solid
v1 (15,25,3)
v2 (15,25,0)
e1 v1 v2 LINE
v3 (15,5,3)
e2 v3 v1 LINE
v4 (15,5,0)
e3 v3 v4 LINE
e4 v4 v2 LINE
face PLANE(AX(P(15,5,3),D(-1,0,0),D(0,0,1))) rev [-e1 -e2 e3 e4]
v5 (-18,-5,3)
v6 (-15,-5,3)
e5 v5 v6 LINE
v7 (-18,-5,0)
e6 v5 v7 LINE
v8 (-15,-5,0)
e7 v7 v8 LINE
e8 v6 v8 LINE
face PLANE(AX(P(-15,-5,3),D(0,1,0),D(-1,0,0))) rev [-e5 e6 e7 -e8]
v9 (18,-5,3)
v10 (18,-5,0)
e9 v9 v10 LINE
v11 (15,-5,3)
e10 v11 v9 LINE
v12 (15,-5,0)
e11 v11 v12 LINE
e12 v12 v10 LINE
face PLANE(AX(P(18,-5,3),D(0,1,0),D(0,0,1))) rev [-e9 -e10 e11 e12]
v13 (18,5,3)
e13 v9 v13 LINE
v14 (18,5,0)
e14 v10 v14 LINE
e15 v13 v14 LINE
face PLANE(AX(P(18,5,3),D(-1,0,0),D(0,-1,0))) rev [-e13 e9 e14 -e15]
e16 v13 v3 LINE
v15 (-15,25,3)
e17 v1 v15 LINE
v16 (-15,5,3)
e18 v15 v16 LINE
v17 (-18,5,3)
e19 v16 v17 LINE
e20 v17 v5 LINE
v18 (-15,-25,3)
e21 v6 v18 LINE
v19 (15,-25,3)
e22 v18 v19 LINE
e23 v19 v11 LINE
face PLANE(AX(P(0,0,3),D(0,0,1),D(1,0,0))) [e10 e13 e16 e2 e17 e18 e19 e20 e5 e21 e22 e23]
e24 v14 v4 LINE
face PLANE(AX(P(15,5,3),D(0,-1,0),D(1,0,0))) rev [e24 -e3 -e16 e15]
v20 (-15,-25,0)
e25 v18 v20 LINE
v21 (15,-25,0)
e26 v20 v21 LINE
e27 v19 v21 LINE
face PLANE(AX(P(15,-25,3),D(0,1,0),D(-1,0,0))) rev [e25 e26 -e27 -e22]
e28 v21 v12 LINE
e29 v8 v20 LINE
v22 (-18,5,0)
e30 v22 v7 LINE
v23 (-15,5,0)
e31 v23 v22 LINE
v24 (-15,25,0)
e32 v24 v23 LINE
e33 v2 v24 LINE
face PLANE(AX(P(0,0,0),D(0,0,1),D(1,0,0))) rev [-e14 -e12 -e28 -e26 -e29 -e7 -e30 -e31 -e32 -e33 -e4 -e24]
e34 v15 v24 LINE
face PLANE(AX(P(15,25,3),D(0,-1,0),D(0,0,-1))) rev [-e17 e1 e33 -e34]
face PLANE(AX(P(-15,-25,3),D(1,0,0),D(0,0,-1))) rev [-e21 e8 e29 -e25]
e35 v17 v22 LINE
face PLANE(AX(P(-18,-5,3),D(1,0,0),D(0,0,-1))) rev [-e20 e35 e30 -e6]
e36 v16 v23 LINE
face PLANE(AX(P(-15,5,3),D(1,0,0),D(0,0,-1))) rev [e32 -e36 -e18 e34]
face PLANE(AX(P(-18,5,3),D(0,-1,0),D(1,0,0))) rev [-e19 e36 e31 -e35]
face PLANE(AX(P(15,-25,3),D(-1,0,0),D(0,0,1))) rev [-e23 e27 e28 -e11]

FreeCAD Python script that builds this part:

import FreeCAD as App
import Part
import Sketcher

V = App.Vector

doc = App.newDocument("Part")
body = doc.addObject("PartDesign::Body", "Body")

sketch1 = doc.addObject("Sketcher::SketchObject", "Sketch")
body.addObject(sketch1)
sketch1.AttachmentSupport = (doc.XY_Plane, [""])
sketch1.MapMode = "FlatFace"
sketch1.addGeometry([
    Part.LineSegment(V(-18, -5, 0), V(-15, -5, 0)),
    Part.LineSegment(V(-15, -5, 0), V(-15, -25, 0)),
    Part.LineSegment(V(-15, -25, 0), V(15, -25, 0)),
    Part.LineSegment(V(15, -25, 0), V(15, -5, 0)),
    Part.LineSegment(V(15, -5, 0), V(18, -5, 0)),
    Part.LineSegment(V(18, -5, 0), V(18, 5, 0)),
    Part.LineSegment(V(18, 5, 0), V(15, 5, 0)),
    Part.LineSegment(V(15, 5, 0), V(15, 25, 0)),
    Part.LineSegment(V(15, 25, 0), V(-15, 25, 0)),
    Part.LineSegment(V(-15, 25, 0), V(-15, 5, 0)),
    Part.LineSegment(V(-15, 5, 0), V(-18, 5, 0)),
    Part.LineSegment(V(-18, 5, 0), V(-18, -5, 0)),
], False)
sketch1.addConstraint([
    Sketcher.Constraint("Coincident", 0, 2, 1, 1),
    Sketcher.Constraint("Coincident", 1, 2, 2, 1),
    Sketcher.Constraint("Coincident", 2, 2, 3, 1),
    Sketcher.Constraint("Coincident", 3, 2, 4, 1),
    Sketcher.Constraint("Coincident", 4, 2, 5, 1),
    Sketcher.Constraint("Coincident", 5, 2, 6, 1),
    Sketcher.Constraint("Coincident", 6, 2, 7, 1),
    Sketcher.Constraint("Coincident", 7, 2, 8, 1),
    Sketcher.Constraint("Coincident", 8, 2, 9, 1),
    Sketcher.Constraint("Coincident", 9, 2, 10, 1),
    Sketcher.Constraint("Coincident", 10, 2, 11, 1),
    Sketcher.Constraint("Coincident", 11, 2, 0, 1),
    Sketcher.Constraint("Horizontal", 0),
    Sketcher.Constraint("Vertical", 1),
    Sketcher.Constraint("Horizontal", 2),
    Sketcher.Constraint("Vertical", 3),
    Sketcher.Constraint("Horizontal", 4),
    Sketcher.Constraint("Vertical", 5),
    Sketcher.Constraint("Horizontal", 6),
    Sketcher.Constraint("Vertical", 7),
    Sketcher.Constraint("Horizontal", 8),
    Sketcher.Constraint("Vertical", 9),
    Sketcher.Constraint("Horizontal", 10),
    Sketcher.Constraint("Vertical", 11),
    Sketcher.Constraint("Symmetric", 0, 2, 6, 2, -1, 1),
    Sketcher.Constraint("Symmetric", 2, 2, 8, 2, -1, 1),
    Sketcher.Constraint("Symmetric", 4, 2, 10, 2, -1, 1),
    Sketcher.Constraint("Symmetric", 0, 2, 3, 2, -2),
    Sketcher.Constraint("DistanceX", 0, 1, 0, 2, 3.0),
    Sketcher.Constraint("DistanceX", 2, 1, 2, 2, 30.0),
    Sketcher.Constraint("DistanceY", 1, 2, 1, 1, 20.0),
    Sketcher.Constraint("DistanceY", 5, 1, 5, 2, 10.0),
])
pad1 = doc.addObject("PartDesign::Pad", "Pad")
body.addObject(pad1)
pad1.Profile = sketch1
pad1.Length = 3

doc.recompute()
